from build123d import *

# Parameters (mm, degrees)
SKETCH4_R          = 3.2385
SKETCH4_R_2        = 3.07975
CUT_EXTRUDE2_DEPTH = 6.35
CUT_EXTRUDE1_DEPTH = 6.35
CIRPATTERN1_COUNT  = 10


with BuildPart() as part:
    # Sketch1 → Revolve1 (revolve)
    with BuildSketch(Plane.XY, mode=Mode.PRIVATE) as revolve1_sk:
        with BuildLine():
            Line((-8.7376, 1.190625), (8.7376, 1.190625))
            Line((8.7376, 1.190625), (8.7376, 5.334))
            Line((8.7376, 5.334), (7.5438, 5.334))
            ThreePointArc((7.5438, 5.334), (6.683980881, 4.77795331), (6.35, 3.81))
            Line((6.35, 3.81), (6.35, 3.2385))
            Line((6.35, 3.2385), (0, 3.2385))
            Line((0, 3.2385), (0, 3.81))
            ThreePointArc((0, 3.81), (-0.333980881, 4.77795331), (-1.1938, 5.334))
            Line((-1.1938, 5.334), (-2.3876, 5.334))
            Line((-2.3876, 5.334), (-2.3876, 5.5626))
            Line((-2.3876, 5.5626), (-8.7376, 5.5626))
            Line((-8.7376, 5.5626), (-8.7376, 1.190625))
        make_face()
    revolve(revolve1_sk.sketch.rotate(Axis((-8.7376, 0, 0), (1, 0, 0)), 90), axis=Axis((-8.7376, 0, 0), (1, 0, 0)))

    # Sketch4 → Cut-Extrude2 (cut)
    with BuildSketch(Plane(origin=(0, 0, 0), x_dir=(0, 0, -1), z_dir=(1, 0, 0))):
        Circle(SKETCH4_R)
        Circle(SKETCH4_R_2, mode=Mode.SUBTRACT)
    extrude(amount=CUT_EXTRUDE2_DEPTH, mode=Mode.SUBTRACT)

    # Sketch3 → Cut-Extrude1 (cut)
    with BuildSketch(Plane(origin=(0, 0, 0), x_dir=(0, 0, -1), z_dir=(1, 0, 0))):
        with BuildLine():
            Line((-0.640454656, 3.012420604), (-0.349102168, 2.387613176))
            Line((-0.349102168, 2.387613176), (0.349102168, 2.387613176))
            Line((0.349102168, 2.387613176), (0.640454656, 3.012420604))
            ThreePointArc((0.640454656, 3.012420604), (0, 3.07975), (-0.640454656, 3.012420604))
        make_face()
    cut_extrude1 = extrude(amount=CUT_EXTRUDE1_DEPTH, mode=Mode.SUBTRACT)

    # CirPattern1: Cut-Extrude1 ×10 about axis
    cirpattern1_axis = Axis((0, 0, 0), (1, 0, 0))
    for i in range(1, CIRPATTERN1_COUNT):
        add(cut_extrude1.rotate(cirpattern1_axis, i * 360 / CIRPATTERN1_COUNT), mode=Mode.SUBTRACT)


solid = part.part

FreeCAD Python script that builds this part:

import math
import FreeCAD as App
import Part
import Sketcher
Q = App.Units.Quantity

doc = App.newDocument("Part")
body = doc.addObject("PartDesign::Body", "Body")

# Sketch on XY plane
sketch1 = doc.addObject("Sketcher::SketchObject", "Sketch")
body.addObject(sketch1)
sketch1.AttachmentSupport = (doc.XY_Plane, [""])
sketch1.MapMode = "FlatFace"
sketch1.addGeometry(Part.LineSegment(App.Vector(-8.7376, 1.190625, 0), App.Vector(8.7376, 1.190625, 0)), False)
sketch1.addGeometry(Part.LineSegment(App.Vector(8.7376, 1.190625, 0), App.Vector(8.7376, 5.334, 0)), False)
sketch1.addGeometry(Part.LineSegment(App.Vector(8.7376, 5.334, 0), App.Vector(7.5438, 5.334, 0)), False)
sketch1.addGeometry(Part.ArcOfCircle(Part.Circle(App.Vector(7.919666, 3.81, 0), App.Vector(0, 0, 1), 1.569666), math.radians(103.854436), math.radians(180)), False)
sketch1.addGeometry(Part.LineSegment(App.Vector(6.35, 3.81, 0), App.Vector(6.35, 3.2385, 0)), False)
sketch1.addGeometry(Part.LineSegment(App.Vector(6.35, 3.2385, 0), App.Vector(0, 3.2385, 0)), False)
sketch1.addGeometry(Part.LineSegment(App.Vector(0, 3.2385, 0), App.Vector(0, 3.81, 0)), False)
sketch1.addGeometry(Part.ArcOfCircle(Part.Circle(App.Vector(-1.569666, 3.81, 0), App.Vector(0, 0, 1), 1.569666), math.radians(0), math.radians(76.145564)), False)
sketch1.addGeometry(Part.LineSegment(App.Vector(-1.1938, 5.334, 0), App.Vector(-2.3876, 5.334, 0)), False)
sketch1.addGeometry(Part.LineSegment(App.Vector(-2.3876, 5.334, 0), App.Vector(-2.3876, 5.5626, 0)), False)
sketch1.addGeometry(Part.LineSegment(App.Vector(-2.3876, 5.5626, 0), App.Vector(-8.7376, 5.5626, 0)), False)
sketch1.addGeometry(Part.LineSegment(App.Vector(-8.7376, 5.5626, 0), App.Vector(-8.7376, 1.190625, 0)), False)
sketch1.addConstraint(Sketcher.Constraint("Coincident", 0, 2, 1, 1))
sketch1.addConstraint(Sketcher.Constraint("Coincident", 1, 2, 2, 1))
sketch1.addConstraint(Sketcher.Constraint("Coincident", 2, 2, 3, 1))
sketch1.addConstraint(Sketcher.Constraint("Tangent", 3, 2, 4, 1))
sketch1.addConstraint(Sketcher.Constraint("Coincident", 4, 2, 5, 1))
sketch1.addConstraint(Sketcher.Constraint("Coincident", 5, 2, 6, 1))
sketch1.addConstraint(Sketcher.Constraint("Tangent", 6, 2, 7, 1))
sketch1.addConstraint(Sketcher.Constraint("Coincident", 7, 2, 8, 1))
sketch1.addConstraint(Sketcher.Constraint("Coincident", 8, 2, 9, 1))
sketch1.addConstraint(Sketcher.Constraint("Coincident", 9, 2, 10, 1))
sketch1.addConstraint(Sketcher.Constraint("Coincident", 10, 2, 11, 1))
sketch1.addConstraint(Sketcher.Constraint("Coincident", 11, 2, 0, 1))
sketch1.addConstraint(Sketcher.Constraint("Horizontal", 0))
sketch1.addConstraint(Sketcher.Constraint("Vertical", 1))
sketch1.addConstraint(Sketcher.Constraint("Horizontal", 2))
sketch1.addConstraint(Sketcher.Constraint("Vertical", 4))
sketch1.addConstraint(Sketcher.Constraint("Horizontal", 5))
sketch1.addConstraint(Sketcher.Constraint("Vertical", 6))
sketch1.addConstraint(Sketcher.Constraint("Horizontal", 8))
sketch1.addConstraint(Sketcher.Constraint("Vertical", 9))
sketch1.addConstraint(Sketcher.Constraint("Horizontal", 10))
sketch1.addConstraint(Sketcher.Constraint("Vertical", 11))
sketch1.addConstraint(Sketcher.Constraint("Equal", 3, 7))
sketch1.addConstraint(Sketcher.Constraint("PointOnObject", 5, 2, -2))
sketch1.addConstraint(Sketcher.Constraint("Horizontal", 3, 3, 7, 3))
sketch1.addConstraint(Sketcher.Constraint("Horizontal", 2, 2, 7, 2))
sketch1.addConstraint(Sketcher.Constraint("Equal", 2, 8))
sketch1.addConstraint(Sketcher.Constraint("Equal", 5, 10))
sketch1.addConstraint(Sketcher.Constraint("DistanceX", 5, 2, 5, 1, Q("0.25 in")))
sketch1.addConstraint(Sketcher.Constraint("DistanceX", 0, 1, 0, 2, Q("0.688 in")))
sketch1.addConstraint(Sketcher.Constraint("DistanceX", 2, 2, 2, 1, Q("0.047 in")))
sketch1.addConstraint(Sketcher.Constraint("DistanceY", 9, 1, 9, 2, Q("0.009 in")))
sketch1.addConstraint(Sketcher.Constraint("DistanceY", -1, 1, 3, 3, Q("0.15 in")))
sketch1.addConstraint(Sketcher.Constraint("DistanceY", -1, 1, 1, 2, Q("0.21 in")))
sketch1.addConstraint(Sketcher.Constraint("DistanceY", 4, 2, 4, 1, Q("0.0225 in")))
sketch1.addConstraint(Sketcher.Constraint("DistanceY", -1, 1, 0, 2, Q("0.046875 in")))
revolution = doc.addObject("PartDesign::Revolution", "Revolution")
body.addObject(revolution)
revolution.Profile = sketch1
revolution.ReferenceAxis = (sketch1, ["H_Axis"])
revolution.Angle = 360

# Sketch on YZ plane
sketch2 = doc.addObject("Sketcher::SketchObject", "Sketch001")
body.addObject(sketch2)
sketch2.AttachmentSupport = (doc.YZ_Plane, [""])
sketch2.MapMode = "FlatFace"
sketch2.addGeometry(Part.Circle(App.Vector(0, 0, 0), App.Vector(0, 0, 1), 3.2385), False)
sketch2.addGeometry(Part.Circle(App.Vector(0, 0, 0), App.Vector(0, 0, 1), 3.07975), False)
sketch2.addConstraint(Sketcher.Constraint("Coincident", 0, 3, -1, 1))
sketch2.addConstraint(Sketcher.Constraint("Coincident", 1, 3, -1, 1))
sketch2.addConstraint(Sketcher.Constraint("Diameter", 0, Q("0.255 in")))
sketch2.addConstraint(Sketcher.Constraint("Diameter", 1, Q("0.2425 in")))
pocket1 = doc.addObject("PartDesign::Pocket", "Pocket")
body.addObject(pocket1)
pocket1.Profile = sketch2
pocket1.Length = Q("0.25 in")
pocket1.Reversed = True

# Sketch on YZ plane
sketch3 = doc.addObject("Sketcher::SketchObject", "Sketch002")
body.addObject(sketch3)
sketch3.AttachmentSupport = (doc.YZ_Plane, [""])
sketch3.MapMode = "FlatFace"
sketch3.addGeometry(Part.LineSegment(App.Vector(3.012421, 0.640455, 0), App.Vector(2.387613, 0.349102, 0)), False)
sketch3.addGeometry(Part.LineSegment(App.Vector(2.387613, 0.349102, 0), App.Vector(2.387613, -0.349102, 0)), False)
sketch3.addGeometry(Part.LineSegment(App.Vector(2.387613, -0.349102, 0), App.Vector(3.012421, -0.640455, 0)), False)
sketch3.addGeometry(Part.ArcOfCircle(Part.Circle(App.Vector(0, 0, 0), App.Vector(0, 0, 1), 3.07975), math.radians(-12.002637), math.radians(12.002637)), False)
sketch3.addConstraint(Sketcher.Constraint("Coincident", 0, 2, 1, 1))
sketch3.addConstraint(Sketcher.Constraint("Coincident", 1, 2, 2, 1))
sketch3.addConstraint(Sketcher.Constraint("Coincident", 2, 2, 3, 1))
sketch3.addConstraint(Sketcher.Constraint("Coincident", 3, 2, 0, 1))
sketch3.addConstraint(Sketcher.Constraint("Vertical", 1))
sketch3.addConstraint(Sketcher.Constraint("Coincident", 3, 3, -1, 1))
sketch3.addConstraint(Sketcher.Constraint("Vertical", 2, 2, 3, 2))
sketch3.addConstraint(Sketcher.Constraint("Equal", 0, 2))
sketch3.addConstraint(Sketcher.Constraint("Angle", 0, Q("-155 deg")))
sketch3.addConstraint(Sketcher.Constraint("Radius", 3, 3.07975))
sketch3.addConstraint(Sketcher.Constraint("Distance", 0, 0.689399))
sketch3.addConstraint(Sketcher.Constraint("DistanceY", 1, 2, 1, 1, 0.698204))
pocket2 = doc.addObject("PartDesign::Pocket", "Pocket001")
body.addObject(pocket2)
pocket2.Profile = sketch3
pocket2.Length = Q("0.25 in")
pocket2.Reversed = True
doc.recompute()

polarpattern = doc.addObject("PartDesign::PolarPattern", "PolarPattern")
body.addObject(polarpattern)
polarpattern.Originals = [pocket2]
polarpattern.Axis = (doc.X_Axis, [""])
polarpattern.Angle = 360
polarpattern.Occurrences = 10
body.Tip = polarpattern

doc.recompute()
